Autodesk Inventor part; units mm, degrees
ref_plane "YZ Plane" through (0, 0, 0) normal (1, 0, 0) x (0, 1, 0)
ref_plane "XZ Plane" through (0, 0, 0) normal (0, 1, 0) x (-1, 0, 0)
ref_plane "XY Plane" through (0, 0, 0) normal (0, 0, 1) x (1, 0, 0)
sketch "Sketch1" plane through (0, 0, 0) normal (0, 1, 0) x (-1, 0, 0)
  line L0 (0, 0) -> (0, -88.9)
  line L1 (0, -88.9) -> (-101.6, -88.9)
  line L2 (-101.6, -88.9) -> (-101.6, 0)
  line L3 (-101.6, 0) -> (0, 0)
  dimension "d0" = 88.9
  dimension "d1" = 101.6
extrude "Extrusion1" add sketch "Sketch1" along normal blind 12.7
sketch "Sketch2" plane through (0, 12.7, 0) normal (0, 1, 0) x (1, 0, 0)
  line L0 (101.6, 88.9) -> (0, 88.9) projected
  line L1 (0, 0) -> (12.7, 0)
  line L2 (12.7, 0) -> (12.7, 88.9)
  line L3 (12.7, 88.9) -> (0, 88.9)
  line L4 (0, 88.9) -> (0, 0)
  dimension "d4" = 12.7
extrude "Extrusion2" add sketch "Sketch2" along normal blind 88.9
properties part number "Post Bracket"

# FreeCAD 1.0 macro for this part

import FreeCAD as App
import Part
import Sketcher
from FreeCAD import Vector
Q = App.Units.Quantity


def add_polygon(sketch, points):
    """Adds a closed chain of lines whose ends are joined by coincident constraints."""
    first, n = sketch.GeometryCount, len(points)
    for a, b in zip(points, points[1:] + points[:1]):
        sketch.addGeometry(Part.LineSegment(App.Vector(*a, 0), App.Vector(*b, 0)), False)
    for i in range(n):
        sketch.addConstraint(Sketcher.Constraint("Coincident", first + i, 2, first + (i + 1) % n, 1))

doc = App.newDocument("Part")
params = doc.addObject("Spreadsheet::Sheet", "Params")
for row, (alias, value) in enumerate([
    ("sketch1_width", "4 in"),
    ("sketch1_height", "3.5 in"),
    ("pad1_length", "0.5 in"),
    ("sketch2_width", "0.5 in"),
    ("sketch2_height", "3.5 in"),
    ("pad2_length", "3.5 in"),
], start=1):
    params.set(f"A{row}", alias)
    params.set(f"B{row}", "=" + value)
    params.setAlias(f"B{row}", alias)

body = doc.addObject("PartDesign::Body", "Body")

sketch1 = body.newObject("Sketcher::SketchObject", "Sketch")
sketch1.AttachmentSupport = (doc.getObject("XZ_Plane"), [""])
sketch1.MapMode = "FlatFace"
add_polygon(sketch1, [(0, -89), (0, 0), (102, 0), (102, -89)])
sketch1.addConstraint(Sketcher.Constraint("Vertical", 0))
sketch1.addConstraint(Sketcher.Constraint("Horizontal", 1))
sketch1.addConstraint(Sketcher.Constraint("Vertical", 2))
sketch1.addConstraint(Sketcher.Constraint("Horizontal", 3))
sketch1.addConstraint(Sketcher.Constraint("Coincident", 0, 2, -1, 1))
sketch1.addConstraint(Sketcher.Constraint("DistanceX", 1, 1, 1, 2, Q("4 in")))
sketch1.addConstraint(Sketcher.Constraint("DistanceY", 0, 1, 0, 2, Q("3.5 in")))
sketch1.setExpression("Constraints[9]", "Params.sketch1_width")
sketch1.setExpression("Constraints[10]", "Params.sketch1_height")
pad1 = body.newObject("PartDesign::Pad", "Pad")
pad1.Profile = sketch1
pad1.setExpression("Length", "Params.pad1_length")
pad1.Reversed = True

sketch2 = body.newObject("Sketcher::SketchObject", "Sketch001")
sketch2.AttachmentSupport = (doc.getObject("XZ_Plane"), [""])
sketch2.MapMode = "FlatFace"
sketch2.AttachmentOffset = App.Placement(Vector(0, 0, -0.5 * 25.4), App.Rotation())
add_polygon(sketch2, [(13, 0), (13, -89), (0, -89), (0, 0)])
sketch2.addConstraint(Sketcher.Constraint("Vertical", 0))
sketch2.addConstraint(Sketcher.Constraint("Horizontal", 1))
sketch2.addConstraint(Sketcher.Constraint("Vertical", 2))
sketch2.addConstraint(Sketcher.Constraint("Horizontal", 3))
sketch2.addConstraint(Sketcher.Constraint("Coincident", 2, 2, -1, 1))
sketch2.addConstraint(Sketcher.Constraint("DistanceX", 1, 2, 1, 1, Q("0.5 in")))
sketch2.addConstraint(Sketcher.Constraint("DistanceY", 0, 2, 0, 1, Q("3.5 in")))
sketch2.setExpression("Constraints[9]", "Params.sketch2_width")
sketch2.setExpression("Constraints[10]", "Params.sketch2_height")
pad2 = body.newObject("PartDesign::Pad", "Pad001")
pad2.Profile = sketch2
pad2.setExpression("Length", "Params.pad2_length")
pad2.Reversed = True

doc.recompute()
